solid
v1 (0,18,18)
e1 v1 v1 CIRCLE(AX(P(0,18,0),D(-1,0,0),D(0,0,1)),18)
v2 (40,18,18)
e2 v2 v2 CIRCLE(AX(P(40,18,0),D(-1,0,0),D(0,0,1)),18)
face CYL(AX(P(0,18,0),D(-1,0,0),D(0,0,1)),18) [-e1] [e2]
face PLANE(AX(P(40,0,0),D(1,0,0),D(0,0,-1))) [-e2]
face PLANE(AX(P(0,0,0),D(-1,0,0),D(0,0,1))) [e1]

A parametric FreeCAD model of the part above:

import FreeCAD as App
import Part
import Sketcher
from FreeCAD import Vector
Q = App.Units.Quantity

doc = App.newDocument("Part")
body = doc.addObject("PartDesign::Body", "Body")

# Sketch on XY plane
sketch1 = body.newObject("Sketcher::SketchObject", "Sketch")
sketch1.AttachmentSupport = (doc.getObject("XY_Plane"), [""])
sketch1.MapMode = "FlatFace"
sketch1.addGeometry([
    Part.LineSegment(Vector(0, 18, 0), Vector(0, 0, 0)),
    Part.LineSegment(Vector(0, 0, 0), Vector(40, 0, 0)),
    Part.LineSegment(Vector(40, 0, 0), Vector(40, 18, 0)),
    Part.LineSegment(Vector(40, 18, 0), Vector(0, 18, 0)),
], False)
sketch1.addGeometry(Part.LineSegment(Vector(0, 18, 0), Vector(40, 18, 0)), True)  # axis
sketch1.addConstraint([
    Sketcher.Constraint("Coincident", 0, 2, 1, 1),
    Sketcher.Constraint("Coincident", 1, 2, 2, 1),
    Sketcher.Constraint("Coincident", 2, 2, 3, 1),
    Sketcher.Constraint("Coincident", 3, 2, 0, 1),
    Sketcher.Constraint("Vertical", 0),
    Sketcher.Constraint("Horizontal", 1),
    Sketcher.Constraint("Vertical", 2),
    Sketcher.Constraint("Horizontal", 3),
    Sketcher.Constraint("Horizontal", 4),
    Sketcher.Constraint("Coincident", 0, 2, -1, 1),
    Sketcher.Constraint("Coincident", 4, 1, 3, 2),
    Sketcher.Constraint("Vertical", 1, 2, 4, 2),
    Sketcher.Constraint("DistanceX", 1, 1, 1, 2, Q("40 mm")),
    Sketcher.Constraint("DistanceY", 0, 2, 0, 1, Q("18 mm")),
])
revolution = body.newObject("PartDesign::Revolution", "Revolution")
revolution.Profile = sketch1
revolution.ReferenceAxis = (sketch1, ["Axis0"])
revolution.Angle = 360

doc.recompute()
